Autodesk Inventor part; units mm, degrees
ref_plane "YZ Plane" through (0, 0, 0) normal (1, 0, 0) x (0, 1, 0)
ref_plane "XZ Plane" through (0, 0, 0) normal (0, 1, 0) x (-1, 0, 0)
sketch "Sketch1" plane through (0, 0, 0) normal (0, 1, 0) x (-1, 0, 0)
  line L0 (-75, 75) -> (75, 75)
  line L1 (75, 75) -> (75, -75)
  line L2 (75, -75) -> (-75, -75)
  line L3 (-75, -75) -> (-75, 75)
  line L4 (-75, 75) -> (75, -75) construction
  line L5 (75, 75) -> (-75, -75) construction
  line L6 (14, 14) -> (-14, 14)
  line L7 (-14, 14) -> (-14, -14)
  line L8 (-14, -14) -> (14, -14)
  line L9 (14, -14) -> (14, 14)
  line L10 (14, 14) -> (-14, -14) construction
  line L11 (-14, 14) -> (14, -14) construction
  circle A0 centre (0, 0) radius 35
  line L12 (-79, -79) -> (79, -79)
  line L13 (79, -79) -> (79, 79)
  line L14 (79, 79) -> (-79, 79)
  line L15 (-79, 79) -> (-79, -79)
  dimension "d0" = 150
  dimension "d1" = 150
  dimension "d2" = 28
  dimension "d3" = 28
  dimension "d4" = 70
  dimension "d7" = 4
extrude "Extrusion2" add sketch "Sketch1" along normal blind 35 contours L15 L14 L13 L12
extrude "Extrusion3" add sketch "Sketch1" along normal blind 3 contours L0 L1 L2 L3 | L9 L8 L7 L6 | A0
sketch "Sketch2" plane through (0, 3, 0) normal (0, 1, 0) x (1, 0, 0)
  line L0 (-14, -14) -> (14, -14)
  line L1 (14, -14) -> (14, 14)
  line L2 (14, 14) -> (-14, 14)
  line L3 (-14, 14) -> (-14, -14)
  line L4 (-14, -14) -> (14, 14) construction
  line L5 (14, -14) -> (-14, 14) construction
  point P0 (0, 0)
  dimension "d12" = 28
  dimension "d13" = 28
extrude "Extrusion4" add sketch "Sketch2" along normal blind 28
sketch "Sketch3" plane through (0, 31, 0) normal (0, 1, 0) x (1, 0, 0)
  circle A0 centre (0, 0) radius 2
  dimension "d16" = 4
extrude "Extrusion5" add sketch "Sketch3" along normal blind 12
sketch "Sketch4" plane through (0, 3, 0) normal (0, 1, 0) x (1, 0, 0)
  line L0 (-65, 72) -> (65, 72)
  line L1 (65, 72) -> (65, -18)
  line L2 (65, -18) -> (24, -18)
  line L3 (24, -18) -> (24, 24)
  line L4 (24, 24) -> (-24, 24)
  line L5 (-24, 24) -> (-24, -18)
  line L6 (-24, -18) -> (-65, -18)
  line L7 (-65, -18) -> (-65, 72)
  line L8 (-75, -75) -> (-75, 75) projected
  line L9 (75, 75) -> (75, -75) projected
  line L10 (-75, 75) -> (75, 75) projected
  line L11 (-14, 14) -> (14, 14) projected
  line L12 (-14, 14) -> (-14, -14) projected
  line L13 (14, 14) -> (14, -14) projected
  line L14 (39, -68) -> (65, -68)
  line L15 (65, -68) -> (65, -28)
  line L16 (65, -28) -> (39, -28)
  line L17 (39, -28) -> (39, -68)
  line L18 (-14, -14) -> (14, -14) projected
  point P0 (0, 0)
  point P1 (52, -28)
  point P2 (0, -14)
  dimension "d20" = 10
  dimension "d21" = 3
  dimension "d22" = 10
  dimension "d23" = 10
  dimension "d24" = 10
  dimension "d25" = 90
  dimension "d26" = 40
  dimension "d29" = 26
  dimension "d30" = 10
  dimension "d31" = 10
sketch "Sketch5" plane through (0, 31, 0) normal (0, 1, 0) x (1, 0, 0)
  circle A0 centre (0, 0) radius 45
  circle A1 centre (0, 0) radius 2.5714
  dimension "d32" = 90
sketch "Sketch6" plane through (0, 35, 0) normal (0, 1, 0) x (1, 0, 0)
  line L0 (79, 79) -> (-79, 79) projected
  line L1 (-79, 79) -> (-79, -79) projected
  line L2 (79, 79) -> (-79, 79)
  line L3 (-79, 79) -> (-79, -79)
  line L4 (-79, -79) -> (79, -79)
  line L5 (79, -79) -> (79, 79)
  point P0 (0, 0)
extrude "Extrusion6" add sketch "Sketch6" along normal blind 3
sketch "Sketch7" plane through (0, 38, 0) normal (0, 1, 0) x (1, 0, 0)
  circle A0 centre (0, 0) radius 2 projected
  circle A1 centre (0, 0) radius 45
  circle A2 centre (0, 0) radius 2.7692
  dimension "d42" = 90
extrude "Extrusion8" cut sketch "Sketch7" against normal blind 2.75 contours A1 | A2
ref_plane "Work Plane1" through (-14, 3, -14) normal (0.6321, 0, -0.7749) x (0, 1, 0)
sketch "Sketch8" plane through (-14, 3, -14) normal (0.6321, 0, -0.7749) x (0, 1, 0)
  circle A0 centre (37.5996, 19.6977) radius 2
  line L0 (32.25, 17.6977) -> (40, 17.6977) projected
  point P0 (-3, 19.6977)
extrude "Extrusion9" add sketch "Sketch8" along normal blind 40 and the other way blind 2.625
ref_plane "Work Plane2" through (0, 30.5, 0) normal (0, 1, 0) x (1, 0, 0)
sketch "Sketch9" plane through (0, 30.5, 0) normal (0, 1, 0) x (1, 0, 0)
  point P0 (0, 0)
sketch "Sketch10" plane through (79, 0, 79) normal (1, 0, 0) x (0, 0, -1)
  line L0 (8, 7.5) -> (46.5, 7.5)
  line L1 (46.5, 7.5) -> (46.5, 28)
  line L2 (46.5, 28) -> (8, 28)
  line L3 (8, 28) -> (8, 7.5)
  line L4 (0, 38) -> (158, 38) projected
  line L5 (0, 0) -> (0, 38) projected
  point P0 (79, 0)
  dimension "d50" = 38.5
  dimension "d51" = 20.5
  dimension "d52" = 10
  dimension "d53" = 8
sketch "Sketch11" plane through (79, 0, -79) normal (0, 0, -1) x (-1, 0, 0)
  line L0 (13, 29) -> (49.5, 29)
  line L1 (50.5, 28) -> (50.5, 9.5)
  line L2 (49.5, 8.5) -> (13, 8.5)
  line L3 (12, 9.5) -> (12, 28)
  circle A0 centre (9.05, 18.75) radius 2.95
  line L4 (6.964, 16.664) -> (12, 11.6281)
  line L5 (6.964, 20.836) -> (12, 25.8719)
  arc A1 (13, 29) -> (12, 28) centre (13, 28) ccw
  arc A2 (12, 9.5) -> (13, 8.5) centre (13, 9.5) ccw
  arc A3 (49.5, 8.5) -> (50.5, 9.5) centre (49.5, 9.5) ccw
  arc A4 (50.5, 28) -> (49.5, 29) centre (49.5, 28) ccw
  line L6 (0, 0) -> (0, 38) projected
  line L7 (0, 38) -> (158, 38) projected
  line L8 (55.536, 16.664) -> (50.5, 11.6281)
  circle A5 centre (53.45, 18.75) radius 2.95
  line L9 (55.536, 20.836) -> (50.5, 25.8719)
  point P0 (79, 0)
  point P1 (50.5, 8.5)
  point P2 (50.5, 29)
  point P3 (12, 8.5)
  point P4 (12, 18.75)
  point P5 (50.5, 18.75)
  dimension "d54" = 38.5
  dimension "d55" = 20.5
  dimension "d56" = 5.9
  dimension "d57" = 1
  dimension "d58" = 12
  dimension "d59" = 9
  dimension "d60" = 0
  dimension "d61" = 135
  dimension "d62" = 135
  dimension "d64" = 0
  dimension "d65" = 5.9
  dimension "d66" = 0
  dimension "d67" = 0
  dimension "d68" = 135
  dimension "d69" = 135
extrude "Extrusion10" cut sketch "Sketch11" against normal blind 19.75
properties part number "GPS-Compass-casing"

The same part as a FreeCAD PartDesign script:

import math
import FreeCAD as App
import Part
import Sketcher

V = App.Vector
Q = App.Units.Quantity


def add_polygon(sketch, points):
    """Adds a closed chain of lines whose ends are joined by coincident constraints."""
    first, n = sketch.GeometryCount, len(points)
    for a, b in zip(points, points[1:] + points[:1]):
        sketch.addGeometry(Part.LineSegment(App.Vector(*a, 0), App.Vector(*b, 0)), False)
    for i in range(n):
        sketch.addConstraint(Sketcher.Constraint("Coincident", first + i, 2, first + (i + 1) % n, 1))

doc = App.newDocument("Part")
body = doc.addObject("PartDesign::Body", "Body")

# Sketch on XZ plane
sketch1 = body.newObject("Sketcher::SketchObject", "Sketch")
sketch1.AttachmentSupport = (doc.getObject("XZ_Plane"), [""])
sketch1.MapMode = "FlatFace"
add_polygon(sketch1, [(79, 79), (79, -79), (-79, -79), (-79, 79)])  # lines 0-3
add_polygon(sketch1, [(75, -75), (75, 75), (-75, 75), (-75, -75)])  # lines 4-7
sketch1.addConstraint(Sketcher.Constraint("Vertical", 0))
sketch1.addConstraint(Sketcher.Constraint("Horizontal", 1))
sketch1.addConstraint(Sketcher.Constraint("Vertical", 2))
sketch1.addConstraint(Sketcher.Constraint("Horizontal", 3))
sketch1.addConstraint(Sketcher.Constraint("Vertical", 4))
sketch1.addConstraint(Sketcher.Constraint("Horizontal", 5))
sketch1.addConstraint(Sketcher.Constraint("Vertical", 6))
sketch1.addConstraint(Sketcher.Constraint("Horizontal", 7))
sketch1.addConstraint(Sketcher.Constraint("Symmetric", 0, 2, 2, 2, -1, 1))
sketch1.addConstraint(Sketcher.Constraint("Symmetric", 4, 2, 6, 2, -1, 1))
sketch1.addConstraint(Sketcher.Constraint("Equal", 3, 0))
sketch1.addConstraint(Sketcher.Constraint("Equal", 7, 4))
sketch1.addConstraint(Sketcher.Constraint("DistanceX", 5, 2, 5, 1, Q("150 mm")))
sketch1.addConstraint(Sketcher.Constraint("DistanceX", 4, 2, 3, 2, Q("4 mm")))
pad1 = body.newObject("PartDesign::Pad", "Pad")
pad1.Profile = sketch1
pad1.Length = 35
pad1.Reversed = True

# Sketch on XZ plane
sketch2 = body.newObject("Sketcher::SketchObject", "Sketch001")
sketch2.AttachmentSupport = (doc.getObject("XZ_Plane"), [""])
sketch2.MapMode = "FlatFace"
add_polygon(sketch2, [(-75, 75), (75, 75), (75, -75), (-75, -75)])  # lines 0-3
sketch2.addConstraint(Sketcher.Constraint("Horizontal", 0))
sketch2.addConstraint(Sketcher.Constraint("Vertical", 1))
sketch2.addConstraint(Sketcher.Constraint("Horizontal", 2))
sketch2.addConstraint(Sketcher.Constraint("Vertical", 3))
sketch2.addConstraint(Sketcher.Constraint("Symmetric", 0, 2, 2, 2, -1, 1))
sketch2.addConstraint(Sketcher.Constraint("Equal", 2, 1))
sketch2.addConstraint(Sketcher.Constraint("DistanceX", 0, 1, 0, 2, Q("150 mm")))
pad2 = body.newObject("PartDesign::Pad", "Pad001")
pad2.Profile = sketch2
pad2.Length = 3
pad2.Reversed = True

# Sketch on XZ plane
sketch3 = body.newObject("Sketcher::SketchObject", "Sketch002")
sketch3.AttachmentSupport = (doc.getObject("XZ_Plane"), [""])
sketch3.MapMode = "FlatFace"
sketch3.AttachmentOffset = App.Placement(V(0, 0, -3), App.Rotation())
add_polygon(sketch3, [(-14, -14), (-14, 14), (14, 14), (14, -14)])  # lines 0-3
sketch3.addConstraint(Sketcher.Constraint("Vertical", 0))
sketch3.addConstraint(Sketcher.Constraint("Horizontal", 1))
sketch3.addConstraint(Sketcher.Constraint("Vertical", 2))
sketch3.addConstraint(Sketcher.Constraint("Horizontal", 3))
sketch3.addConstraint(Sketcher.Constraint("Symmetric", 0, 2, 2, 2, -1, 1))
sketch3.addConstraint(Sketcher.Constraint("Equal", 3, 0))
sketch3.addConstraint(Sketcher.Constraint("DistanceX", 1, 1, 1, 2, Q("28 mm")))
pad3 = body.newObject("PartDesign::Pad", "Pad002")
pad3.Profile = sketch3
pad3.Length = 28
pad3.Reversed = True

# Sketch on XZ plane
sketch4 = body.newObject("Sketcher::SketchObject", "Sketch003")
sketch4.AttachmentSupport = (doc.getObject("XZ_Plane"), [""])
sketch4.MapMode = "FlatFace"
sketch4.AttachmentOffset = App.Placement(V(0, 0, -31), App.Rotation())
sketch4.addGeometry(Part.Circle(V(0, 0, 0), V(0, 0, 1), 2), False)
sketch4.addConstraint(Sketcher.Constraint("Coincident", 0, 3, -1, 1))
sketch4.addConstraint(Sketcher.Constraint("Diameter", 0, Q("4 mm")))
pad4 = body.newObject("PartDesign::Pad", "Pad003")
pad4.Profile = sketch4
pad4.Length = 12
pad4.Reversed = True

# Sketch on XZ plane
sketch5 = body.newObject("Sketcher::SketchObject", "Sketch004")
sketch5.AttachmentSupport = (doc.getObject("XZ_Plane"), [""])
sketch5.MapMode = "FlatFace"
sketch5.AttachmentOffset = App.Placement(V(0, 0, -35), App.Rotation())
add_polygon(sketch5, [(79, 79), (79, -79), (-79, -79), (-79, 79)])  # lines 0-3
sketch5.addConstraint(Sketcher.Constraint("Vertical", 0))
sketch5.addConstraint(Sketcher.Constraint("Horizontal", 1))
sketch5.addConstraint(Sketcher.Constraint("Vertical", 2))
sketch5.addConstraint(Sketcher.Constraint("Horizontal", 3))
sketch5.addConstraint(Sketcher.Constraint("Symmetric", 0, 2, 2, 2, -1, 1))
sketch5.addConstraint(Sketcher.Constraint("Equal", 3, 0))
sketch5.addConstraint(Sketcher.Constraint("DistanceX", 1, 2, 1, 1, Q("158 mm")))
pad5 = body.newObject("PartDesign::Pad", "Pad004")
pad5.Profile = sketch5
pad5.Length = 3
pad5.Reversed = True

# Sketch on XZ plane
sketch6 = body.newObject("Sketcher::SketchObject", "Sketch005")
sketch6.AttachmentSupport = (doc.getObject("XZ_Plane"), [""])
sketch6.MapMode = "FlatFace"
sketch6.AttachmentOffset = App.Placement(V(0, 0, -38), App.Rotation())
sketch6.addGeometry(Part.Circle(V(0, 0, 0), V(0, 0, 1), 45), False)
sketch6.addGeometry(Part.Circle(V(0, 0, 0), V(0, 0, 1), 2), False)
sketch6.addConstraint(Sketcher.Constraint("Coincident", 0, 3, -1, 1))
sketch6.addConstraint(Sketcher.Constraint("Coincident", 1, 3, -1, 1))
sketch6.addConstraint(Sketcher.Constraint("Diameter", 0, Q("90 mm")))
sketch6.addConstraint(Sketcher.Constraint("Diameter", 1, Q("4 mm")))
pocket1 = body.newObject("PartDesign::Pocket", "Pocket")
pocket1.Profile = sketch6
pocket1.Length = 2.75
pocket1.Reversed = True

# Sketch on an angled plane
sketch7 = body.newObject("Sketcher::SketchObject", "Sketch006")
sketch7.Placement = App.Placement(V(-14, 3, -14), App.Rotation(V(0, 1, 0), V(0.774892088, 0, 0.632093546), V(0.632093546, 0, -0.774892088), "ZXY"))
sketch7.addGeometry(Part.Circle(V(37.6, 19.7, 0), V(0, 0, 1), 2), False)
sketch7.addConstraint(Sketcher.Constraint("Diameter", 0, Q("4 mm")))
sketch7.addConstraint(Sketcher.Constraint("DistanceX", -1, 1, 0, 3, Q("37.5996 mm")))
sketch7.addConstraint(Sketcher.Constraint("DistanceY", -1, 1, 0, 3, Q("19.6977 mm")))
pad6 = body.newObject("PartDesign::Pad", "Pad005")
pad6.Profile = sketch7
pad6.Type = "TwoLengths"
pad6.Length = 40
pad6.Length2 = 2.625

# Sketch on XY plane
sketch8 = body.newObject("Sketcher::SketchObject", "Sketch007")
sketch8.AttachmentSupport = (doc.getObject("XY_Plane"), [""])
sketch8.MapMode = "FlatFace"
sketch8.AttachmentOffset = App.Placement(V(0, 0, -79), App.Rotation())
sketch8.addGeometry(Part.LineSegment(V(29.5, 29, 0), V(66, 29, 0)), False)
sketch8.addGeometry(Part.ArcOfCircle(Part.Circle(V(66, 28, 0), V(0, 0, 1), 1), math.radians(0), math.radians(90)), False)
sketch8.addGeometry(Part.LineSegment(V(67, 28, 0), V(67, 25.9, 0)), False)
sketch8.addGeometry(Part.LineSegment(V(67, 25.9, 0), V(72, 20.8, 0)), False)
sketch8.addGeometry(Part.ArcOfCircle(Part.Circle(V(70, 18.8, 0), V(0, 0, 1), 3), math.radians(-45), math.radians(45)), False)
sketch8.addGeometry(Part.LineSegment(V(72, 16.7, 0), V(67, 11.6, 0)), False)
sketch8.addGeometry(Part.LineSegment(V(67, 11.6, 0), V(67, 9.5, 0)), False)
sketch8.addGeometry(Part.ArcOfCircle(Part.Circle(V(66, 9.5, 0), V(0, 0, 1), 1), math.radians(-90), math.radians(0)), False)
sketch8.addGeometry(Part.LineSegment(V(66, 8.5, 0), V(29.5, 8.5, 0)), False)
sketch8.addGeometry(Part.ArcOfCircle(Part.Circle(V(29.5, 9.5, 0), V(0, 0, 1), 1), math.radians(180), math.radians(270)), False)
sketch8.addGeometry(Part.LineSegment(V(28.5, 9.5, 0), V(28.5, 11.6, 0)), False)
sketch8.addGeometry(Part.LineSegment(V(28.5, 11.6, 0), V(23.5, 16.7, 0)), False)
sketch8.addGeometry(Part.ArcOfCircle(Part.Circle(V(25.6, 18.8, 0), V(0, 0, 1), 3), math.radians(135), math.radians(225)), False)
sketch8.addGeometry(Part.LineSegment(V(23.5, 20.8, 0), V(28.5, 25.9, 0)), False)
sketch8.addGeometry(Part.LineSegment(V(28.5, 25.9, 0), V(28.5, 28, 0)), False)
sketch8.addGeometry(Part.ArcOfCircle(Part.Circle(V(29.5, 28, 0), V(0, 0, 1), 1), math.radians(90), math.radians(180)), False)
sketch8.addConstraint(Sketcher.Constraint("Tangent", 0, 2, 1, 2))
sketch8.addConstraint(Sketcher.Constraint("Tangent", 1, 1, 2, 1))
sketch8.addConstraint(Sketcher.Constraint("Coincident", 2, 2, 3, 1))
sketch8.addConstraint(Sketcher.Constraint("Tangent", 3, 2, 4, 2))
sketch8.addConstraint(Sketcher.Constraint("Tangent", 4, 1, 5, 1))
sketch8.addConstraint(Sketcher.Constraint("Coincident", 5, 2, 6, 1))
sketch8.addConstraint(Sketcher.Constraint("Tangent", 6, 2, 7, 2))
sketch8.addConstraint(Sketcher.Constraint("Tangent", 7, 1, 8, 1))
sketch8.addConstraint(Sketcher.Constraint("Tangent", 8, 2, 9, 2))
sketch8.addConstraint(Sketcher.Constraint("Tangent", 9, 1, 10, 1))
sketch8.addConstraint(Sketcher.Constraint("Coincident", 10, 2, 11, 1))
sketch8.addConstraint(Sketcher.Constraint("Tangent", 11, 2, 12, 2))
sketch8.addConstraint(Sketcher.Constraint("Tangent", 12, 1, 13, 1))
sketch8.addConstraint(Sketcher.Constraint("Coincident", 13, 2, 14, 1))
sketch8.addConstraint(Sketcher.Constraint("Tangent", 14, 2, 15, 2))
sketch8.addConstraint(Sketcher.Constraint("Tangent", 15, 1, 0, 1))
sketch8.addConstraint(Sketcher.Constraint("Horizontal", 0))
sketch8.addConstraint(Sketcher.Constraint("Vertical", 2))
sketch8.addConstraint(Sketcher.Constraint("Vertical", 6))
sketch8.addConstraint(Sketcher.Constraint("Horizontal", 8))
sketch8.addConstraint(Sketcher.Constraint("Vertical", 10))
sketch8.addConstraint(Sketcher.Constraint("Vertical", 14))
sketch8.addConstraint(Sketcher.Constraint("Equal", 1, 7))
sketch8.addConstraint(Sketcher.Constraint("Equal", 7, 9))
sketch8.addConstraint(Sketcher.Constraint("Equal", 4, 12))
sketch8.addConstraint(Sketcher.Constraint("Equal", 9, 15))
sketch8.addConstraint(Sketcher.Constraint("Perpendicular", 3, 5))
sketch8.addConstraint(Sketcher.Constraint("Perpendicular", 5, 11))
sketch8.addConstraint(Sketcher.Constraint("Perpendicular", 11, 13))
sketch8.addConstraint(Sketcher.Constraint("Horizontal", 4, 3, 12, 3))
sketch8.addConstraint(Sketcher.Constraint("Horizontal", 5, 2, 10, 2))
sketch8.addConstraint(Sketcher.Constraint("Horizontal", 4, 1, 11, 2))
sketch8.addConstraint(Sketcher.Constraint("Horizontal", 2, 2, 13, 2))
sketch8.addConstraint(Sketcher.Constraint("Vertical", 1, 3, 7, 3))
sketch8.addConstraint(Sketcher.Constraint("Equal", 2, 6))
sketch8.addConstraint(Sketcher.Constraint("Radius", 1, Q("1 mm")))
sketch8.addConstraint(Sketcher.Constraint("Radius", 4, Q("2.95 mm")))
sketch8.addConstraint(Sketcher.Constraint("DistanceX", 0, 1, 0, 2, Q("36.5 mm")))
sketch8.addConstraint(Sketcher.Constraint("DistanceX", -1, 1, 1, 3, Q("66 mm")))
sketch8.addConstraint(Sketcher.Constraint("DistanceY", -1, 1, 1, 3, Q("28 mm")))
sketch8.addConstraint(Sketcher.Constraint("DistanceY", -1, 1, 7, 3, Q("9.5 mm")))
sketch8.addConstraint(Sketcher.Constraint("DistanceX", 12, 3, 4, 3, Q("44.4 mm")))
pocket2 = body.newObject("PartDesign::Pocket", "Pocket001")
pocket2.Profile = sketch8
pocket2.Length = 19.75
pocket2.Reversed = True

doc.recompute()
